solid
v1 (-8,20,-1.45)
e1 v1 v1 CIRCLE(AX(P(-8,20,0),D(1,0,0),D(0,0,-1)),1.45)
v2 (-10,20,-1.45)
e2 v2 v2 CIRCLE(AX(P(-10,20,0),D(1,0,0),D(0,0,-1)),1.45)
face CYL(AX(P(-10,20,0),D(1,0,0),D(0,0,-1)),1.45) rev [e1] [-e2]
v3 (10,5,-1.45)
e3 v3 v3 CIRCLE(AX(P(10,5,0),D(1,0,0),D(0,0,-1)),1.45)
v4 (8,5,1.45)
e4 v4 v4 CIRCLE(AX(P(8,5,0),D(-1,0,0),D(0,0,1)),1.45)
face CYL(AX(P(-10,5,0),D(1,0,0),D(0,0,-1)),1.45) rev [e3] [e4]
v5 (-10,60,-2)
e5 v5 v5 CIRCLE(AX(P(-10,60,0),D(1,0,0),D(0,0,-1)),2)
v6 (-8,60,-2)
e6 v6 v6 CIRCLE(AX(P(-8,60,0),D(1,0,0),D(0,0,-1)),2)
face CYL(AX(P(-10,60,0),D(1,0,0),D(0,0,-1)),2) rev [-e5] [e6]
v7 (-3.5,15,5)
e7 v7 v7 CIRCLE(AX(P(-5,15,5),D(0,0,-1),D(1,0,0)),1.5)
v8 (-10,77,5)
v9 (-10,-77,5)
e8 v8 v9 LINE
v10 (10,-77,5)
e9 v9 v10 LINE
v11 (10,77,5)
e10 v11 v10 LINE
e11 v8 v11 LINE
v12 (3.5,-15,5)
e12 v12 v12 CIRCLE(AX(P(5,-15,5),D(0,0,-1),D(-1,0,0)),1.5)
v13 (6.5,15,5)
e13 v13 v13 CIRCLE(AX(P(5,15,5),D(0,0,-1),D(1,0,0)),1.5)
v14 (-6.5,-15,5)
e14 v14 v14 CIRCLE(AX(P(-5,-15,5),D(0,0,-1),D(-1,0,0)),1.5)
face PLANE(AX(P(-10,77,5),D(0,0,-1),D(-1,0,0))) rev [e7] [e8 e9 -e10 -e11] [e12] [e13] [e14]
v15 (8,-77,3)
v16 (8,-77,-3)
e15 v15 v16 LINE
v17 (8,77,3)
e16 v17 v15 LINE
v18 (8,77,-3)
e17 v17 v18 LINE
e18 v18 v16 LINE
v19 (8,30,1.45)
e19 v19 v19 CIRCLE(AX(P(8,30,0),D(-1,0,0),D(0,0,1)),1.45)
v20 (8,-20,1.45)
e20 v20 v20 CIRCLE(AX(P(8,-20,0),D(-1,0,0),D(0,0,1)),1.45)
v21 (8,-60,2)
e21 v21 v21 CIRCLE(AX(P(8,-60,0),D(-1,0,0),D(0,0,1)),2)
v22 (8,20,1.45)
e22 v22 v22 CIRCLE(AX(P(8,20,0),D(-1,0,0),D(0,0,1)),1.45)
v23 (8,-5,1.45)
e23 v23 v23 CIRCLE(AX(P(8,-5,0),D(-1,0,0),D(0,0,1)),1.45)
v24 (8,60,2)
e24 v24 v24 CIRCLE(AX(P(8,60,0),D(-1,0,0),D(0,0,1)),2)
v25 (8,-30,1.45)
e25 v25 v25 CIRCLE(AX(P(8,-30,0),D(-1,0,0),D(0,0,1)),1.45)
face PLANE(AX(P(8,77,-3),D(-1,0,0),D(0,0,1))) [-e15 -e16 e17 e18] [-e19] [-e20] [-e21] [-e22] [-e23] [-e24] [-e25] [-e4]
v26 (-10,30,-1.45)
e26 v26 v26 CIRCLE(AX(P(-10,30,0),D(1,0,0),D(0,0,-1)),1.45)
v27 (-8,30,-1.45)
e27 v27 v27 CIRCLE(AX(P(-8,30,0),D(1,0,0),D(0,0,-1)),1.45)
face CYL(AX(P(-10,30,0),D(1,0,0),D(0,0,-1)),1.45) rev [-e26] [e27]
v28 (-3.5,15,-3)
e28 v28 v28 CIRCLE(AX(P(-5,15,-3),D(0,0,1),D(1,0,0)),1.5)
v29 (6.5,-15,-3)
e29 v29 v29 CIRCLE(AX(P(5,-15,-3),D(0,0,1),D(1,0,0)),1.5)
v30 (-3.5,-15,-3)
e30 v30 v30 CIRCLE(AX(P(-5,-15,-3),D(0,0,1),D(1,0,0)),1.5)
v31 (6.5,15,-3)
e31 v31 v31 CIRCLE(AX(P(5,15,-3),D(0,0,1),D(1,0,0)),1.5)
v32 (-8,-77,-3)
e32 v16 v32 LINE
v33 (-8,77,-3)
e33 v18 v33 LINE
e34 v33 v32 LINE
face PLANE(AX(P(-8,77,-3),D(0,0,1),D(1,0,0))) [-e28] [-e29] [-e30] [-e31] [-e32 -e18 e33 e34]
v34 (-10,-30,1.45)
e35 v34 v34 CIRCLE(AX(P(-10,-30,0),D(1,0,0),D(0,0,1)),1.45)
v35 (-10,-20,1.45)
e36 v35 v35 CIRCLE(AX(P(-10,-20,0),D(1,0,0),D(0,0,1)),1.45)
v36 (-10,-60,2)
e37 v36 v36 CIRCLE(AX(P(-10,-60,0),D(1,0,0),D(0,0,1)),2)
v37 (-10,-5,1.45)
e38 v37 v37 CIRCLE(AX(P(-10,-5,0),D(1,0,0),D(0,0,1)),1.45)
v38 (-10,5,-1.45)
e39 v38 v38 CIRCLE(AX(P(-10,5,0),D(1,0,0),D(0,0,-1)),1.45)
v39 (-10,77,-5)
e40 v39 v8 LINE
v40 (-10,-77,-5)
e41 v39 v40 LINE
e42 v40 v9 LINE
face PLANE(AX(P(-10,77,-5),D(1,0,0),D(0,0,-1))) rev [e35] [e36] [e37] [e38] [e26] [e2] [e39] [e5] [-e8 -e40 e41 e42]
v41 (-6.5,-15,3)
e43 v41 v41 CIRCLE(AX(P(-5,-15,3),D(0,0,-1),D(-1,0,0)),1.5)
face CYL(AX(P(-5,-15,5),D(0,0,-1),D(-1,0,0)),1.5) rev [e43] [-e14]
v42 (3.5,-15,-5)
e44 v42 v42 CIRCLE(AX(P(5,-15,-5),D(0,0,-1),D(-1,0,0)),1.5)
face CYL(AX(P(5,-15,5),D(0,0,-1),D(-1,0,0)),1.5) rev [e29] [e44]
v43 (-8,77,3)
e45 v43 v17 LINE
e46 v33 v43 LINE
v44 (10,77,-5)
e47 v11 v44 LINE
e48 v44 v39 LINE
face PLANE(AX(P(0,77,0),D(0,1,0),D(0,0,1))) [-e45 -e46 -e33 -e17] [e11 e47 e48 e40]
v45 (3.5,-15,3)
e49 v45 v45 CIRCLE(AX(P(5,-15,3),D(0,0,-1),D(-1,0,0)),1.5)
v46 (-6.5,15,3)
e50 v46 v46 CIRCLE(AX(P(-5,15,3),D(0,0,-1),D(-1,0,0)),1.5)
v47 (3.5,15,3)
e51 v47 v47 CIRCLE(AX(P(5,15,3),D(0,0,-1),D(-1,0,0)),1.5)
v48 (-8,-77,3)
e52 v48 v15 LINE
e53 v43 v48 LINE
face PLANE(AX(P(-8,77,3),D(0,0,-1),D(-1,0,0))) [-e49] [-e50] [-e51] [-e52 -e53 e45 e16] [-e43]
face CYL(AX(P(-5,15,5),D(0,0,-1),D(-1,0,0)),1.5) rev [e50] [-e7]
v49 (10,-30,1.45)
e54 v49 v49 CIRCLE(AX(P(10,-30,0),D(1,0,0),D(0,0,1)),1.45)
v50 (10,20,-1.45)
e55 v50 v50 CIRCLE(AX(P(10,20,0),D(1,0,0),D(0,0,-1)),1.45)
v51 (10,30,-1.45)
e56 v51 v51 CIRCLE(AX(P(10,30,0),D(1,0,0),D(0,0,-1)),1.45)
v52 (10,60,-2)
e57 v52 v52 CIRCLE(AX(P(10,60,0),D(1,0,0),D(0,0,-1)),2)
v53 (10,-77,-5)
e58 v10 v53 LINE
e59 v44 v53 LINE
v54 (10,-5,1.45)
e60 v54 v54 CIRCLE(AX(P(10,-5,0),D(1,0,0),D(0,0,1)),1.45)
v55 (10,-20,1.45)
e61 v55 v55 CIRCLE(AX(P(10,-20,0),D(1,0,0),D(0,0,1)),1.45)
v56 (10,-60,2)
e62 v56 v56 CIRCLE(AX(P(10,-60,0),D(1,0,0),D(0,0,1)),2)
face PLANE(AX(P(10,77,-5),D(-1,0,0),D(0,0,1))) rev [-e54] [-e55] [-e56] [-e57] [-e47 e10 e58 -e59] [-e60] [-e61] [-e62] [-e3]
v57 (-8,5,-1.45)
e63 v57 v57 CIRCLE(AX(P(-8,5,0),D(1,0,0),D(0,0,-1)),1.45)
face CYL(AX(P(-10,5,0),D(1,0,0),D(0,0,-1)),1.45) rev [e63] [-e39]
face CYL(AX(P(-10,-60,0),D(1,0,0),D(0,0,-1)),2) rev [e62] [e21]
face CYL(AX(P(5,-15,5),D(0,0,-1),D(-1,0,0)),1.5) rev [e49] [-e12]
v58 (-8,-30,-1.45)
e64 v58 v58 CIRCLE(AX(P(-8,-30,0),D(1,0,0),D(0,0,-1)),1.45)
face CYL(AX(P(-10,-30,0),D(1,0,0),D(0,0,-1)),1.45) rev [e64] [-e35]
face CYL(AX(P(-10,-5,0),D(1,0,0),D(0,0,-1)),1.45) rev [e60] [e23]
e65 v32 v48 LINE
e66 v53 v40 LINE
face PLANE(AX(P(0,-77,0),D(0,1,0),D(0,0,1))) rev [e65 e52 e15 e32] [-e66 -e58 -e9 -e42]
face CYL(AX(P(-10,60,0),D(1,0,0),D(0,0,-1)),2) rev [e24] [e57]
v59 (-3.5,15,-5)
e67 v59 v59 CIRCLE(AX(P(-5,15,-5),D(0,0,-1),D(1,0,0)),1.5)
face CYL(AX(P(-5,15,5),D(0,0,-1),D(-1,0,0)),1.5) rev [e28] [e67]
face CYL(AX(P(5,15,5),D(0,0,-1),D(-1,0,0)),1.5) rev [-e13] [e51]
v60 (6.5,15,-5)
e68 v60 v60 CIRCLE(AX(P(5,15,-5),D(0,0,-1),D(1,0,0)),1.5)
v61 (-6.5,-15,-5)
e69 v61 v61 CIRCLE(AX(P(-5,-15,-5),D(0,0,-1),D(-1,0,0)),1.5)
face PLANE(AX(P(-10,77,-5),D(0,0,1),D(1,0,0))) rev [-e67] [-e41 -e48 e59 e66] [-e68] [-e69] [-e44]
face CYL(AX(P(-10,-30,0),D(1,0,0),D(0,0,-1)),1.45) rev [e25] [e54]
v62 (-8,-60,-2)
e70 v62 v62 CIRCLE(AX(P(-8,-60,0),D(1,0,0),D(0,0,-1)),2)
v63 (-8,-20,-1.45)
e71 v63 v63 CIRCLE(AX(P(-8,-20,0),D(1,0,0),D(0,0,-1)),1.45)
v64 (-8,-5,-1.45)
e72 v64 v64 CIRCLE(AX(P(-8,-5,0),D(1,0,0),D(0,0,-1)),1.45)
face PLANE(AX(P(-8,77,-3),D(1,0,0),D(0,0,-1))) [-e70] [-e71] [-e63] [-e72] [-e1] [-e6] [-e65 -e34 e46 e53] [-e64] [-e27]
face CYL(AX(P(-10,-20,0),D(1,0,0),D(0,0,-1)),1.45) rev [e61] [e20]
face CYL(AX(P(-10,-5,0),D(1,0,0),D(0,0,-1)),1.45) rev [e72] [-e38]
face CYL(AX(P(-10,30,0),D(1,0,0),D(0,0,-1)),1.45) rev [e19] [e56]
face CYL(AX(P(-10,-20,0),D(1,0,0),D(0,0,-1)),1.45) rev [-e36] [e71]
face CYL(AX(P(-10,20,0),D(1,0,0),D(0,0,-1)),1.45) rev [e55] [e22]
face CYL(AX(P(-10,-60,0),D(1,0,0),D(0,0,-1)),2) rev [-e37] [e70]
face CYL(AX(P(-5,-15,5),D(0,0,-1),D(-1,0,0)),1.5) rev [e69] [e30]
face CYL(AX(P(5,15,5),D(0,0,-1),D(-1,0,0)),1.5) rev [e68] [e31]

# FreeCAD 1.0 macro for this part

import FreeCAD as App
import Part
import Sketcher
from FreeCAD import Vector
Q = App.Units.Quantity


def add_polygon(sketch, points):
    """Adds a closed chain of lines whose ends are joined by coincident constraints."""
    first, n = sketch.GeometryCount, len(points)
    for a, b in zip(points, points[1:] + points[:1]):
        sketch.addGeometry(Part.LineSegment(App.Vector(*a, 0), App.Vector(*b, 0)), False)
    for i in range(n):
        sketch.addConstraint(Sketcher.Constraint("Coincident", first + i, 2, first + (i + 1) % n, 1))

doc = App.newDocument("Part")
params = doc.addObject("Spreadsheet::Sheet", "Params")
for row, (alias, value) in enumerate([
    ("sketch1_width", "20 mm"),
    ("sketch1_width2", "16 mm"),
    ("sketch1_height", "10 mm"),
    ("sketch1_height2", "6 mm"),
    ("pad1_length", "154 mm"),
    ("sketch2_diameter", "4 mm"),
    ("sketch2_diameter2", "2.9 mm"),
    ("sketch3_diameter", "3 mm"),
], start=1):
    params.set(f"A{row}", alias)
    params.set(f"B{row}", "=" + value)
    params.setAlias(f"B{row}", alias)

body = doc.addObject("PartDesign::Body", "Body")

sketch1 = body.newObject("Sketcher::SketchObject", "Sketch")
sketch1.AttachmentSupport = (doc.getObject("XZ_Plane"), [""])
sketch1.MapMode = "FlatFace"
add_polygon(sketch1, [(-10, -5), (-10, 5), (10, 5), (10, -5)])
add_polygon(sketch1, [(8, 3), (-8, 3), (-8, -3), (8, -3)])
sketch1.addConstraint([
    Sketcher.Constraint("Vertical", 0),
    Sketcher.Constraint("Horizontal", 1),
    Sketcher.Constraint("Vertical", 2),
    Sketcher.Constraint("Horizontal", 3),
    Sketcher.Constraint("Horizontal", 4),
    Sketcher.Constraint("Vertical", 5),
    Sketcher.Constraint("Horizontal", 6),
    Sketcher.Constraint("Vertical", 7),
    Sketcher.Constraint("Symmetric", 0, 2, 2, 2, -1, 1),
    Sketcher.Constraint("Symmetric", 4, 2, 6, 2, -1, 1),
    Sketcher.Constraint("DistanceX", 1, 1, 1, 2, Q("20 mm")),
    Sketcher.Constraint("DistanceX", 4, 2, 4, 1, Q("16 mm")),
    Sketcher.Constraint("DistanceY", 0, 1, 0, 2, Q("10 mm")),
    Sketcher.Constraint("DistanceY", 5, 2, 5, 1, Q("6 mm")),
])
sketch1.setExpression("Constraints[18]", "Params.sketch1_width")
sketch1.setExpression("Constraints[19]", "Params.sketch1_width2")
sketch1.setExpression("Constraints[20]", "Params.sketch1_height")
sketch1.setExpression("Constraints[21]", "Params.sketch1_height2")
pad1 = body.newObject("PartDesign::Pad", "Pad")
pad1.Profile = sketch1
pad1.setExpression("Length", "Params.pad1_length")
pad1.Midplane = True

sketch2 = body.newObject("Sketcher::SketchObject", "Sketch001")
sketch2.AttachmentSupport = (doc.getObject("YZ_Plane"), [""])
sketch2.MapMode = "FlatFace"
sketch2.AttachmentOffset = App.Placement(Vector(0, 0, 10), App.Rotation())
sketch2.addGeometry([
    Part.Circle(Vector(5, 0, 0), Vector(0, 0, 1), 1.4),
    Part.Circle(Vector(20, 0, 0), Vector(0, 0, 1), 1.4),
    Part.Circle(Vector(30, 0, 0), Vector(0, 0, 1), 1.4),
    Part.Circle(Vector(-30, 0, 0), Vector(0, 0, 1), 1.4),
    Part.Circle(Vector(-20, 0, 0), Vector(0, 0, 1), 1.4),
    Part.Circle(Vector(-5, 0, 0), Vector(0, 0, 1), 1.4),
    Part.Circle(Vector(60, 0, 0), Vector(0, 0, 1), 2),
    Part.Circle(Vector(-60, 0, 0), Vector(0, 0, 1), 2),
], False)
sketch2.addConstraint([
    Sketcher.Constraint("Equal", 0, 1),
    Sketcher.Constraint("Equal", 1, 2),
    Sketcher.Constraint("Equal", 2, 3),
    Sketcher.Constraint("Equal", 3, 4),
    Sketcher.Constraint("Equal", 4, 5),
    Sketcher.Constraint("Equal", 6, 7),
    Sketcher.Constraint("Symmetric", 2, 3, 3, 3, -1, 1),
    Sketcher.Constraint("Symmetric", 1, 3, 4, 3, -1, 1),
    Sketcher.Constraint("Symmetric", 0, 3, 5, 3, -1, 1),
    Sketcher.Constraint("Symmetric", 6, 3, 7, 3, -1, 1),
    Sketcher.Constraint("PointOnObject", 0, 3, -1),
    Sketcher.Constraint("PointOnObject", 1, 3, -1),
    Sketcher.Constraint("PointOnObject", 2, 3, -1),
    Sketcher.Constraint("PointOnObject", 6, 3, -1),
    Sketcher.Constraint("Diameter", 6, Q("4 mm")),
    Sketcher.Constraint("Diameter", 0, Q("2.9 mm")),
    Sketcher.Constraint("DistanceX", -1, 1, 0, 3, Q("5 mm")),
    Sketcher.Constraint("DistanceX", -1, 1, 1, 3, Q("20 mm")),
    Sketcher.Constraint("DistanceX", -1, 1, 2, 3, Q("30 mm")),
    Sketcher.Constraint("DistanceX", -1, 1, 6, 3, Q("60 mm")),
])
sketch2.setExpression("Constraints[14]", "Params.sketch2_diameter")
sketch2.setExpression("Constraints[15]", "Params.sketch2_diameter2")
pocket1 = body.newObject("PartDesign::Pocket", "Pocket")
pocket1.Profile = sketch2
pocket1.Type = "ThroughAll"

sketch3 = body.newObject("Sketcher::SketchObject", "Sketch002")
sketch3.AttachmentSupport = (doc.getObject("XY_Plane"), [""])
sketch3.MapMode = "FlatFace"
sketch3.AttachmentOffset = App.Placement(Vector(0, 0, -5), App.Rotation())
sketch3.addGeometry([
    Part.Circle(Vector(-5, -15, 0), Vector(0, 0, 1), 1.5),
    Part.Circle(Vector(5, -15, 0), Vector(0, 0, 1), 1.5),
    Part.Circle(Vector(-5, 15, 0), Vector(0, 0, 1), 1.5),
    Part.Circle(Vector(5, 15, 0), Vector(0, 0, 1), 1.5),
], False)
sketch3.addConstraint([
    Sketcher.Constraint("Equal", 0, 1),
    Sketcher.Constraint("Equal", 1, 2),
    Sketcher.Constraint("Equal", 2, 3),
    Sketcher.Constraint("Symmetric", 1, 3, 2, 3, -1, 1),
    Sketcher.Constraint("Symmetric", 0, 3, 3, 3, -1, 1),
    Sketcher.Constraint("Symmetric", 0, 3, 1, 3, -2),
    Sketcher.Constraint("Diameter", 0, Q("3 mm")),
    Sketcher.Constraint("DistanceX", 0, 3, -1, 1, Q("5 mm")),
    Sketcher.Constraint("DistanceY", 0, 3, -1, 1, Q("15 mm")),
])
sketch3.setExpression("Constraints[6]", "Params.sketch3_diameter")
pocket2 = body.newObject("PartDesign::Pocket", "Pocket001")
pocket2.Profile = sketch3
pocket2.Type = "ThroughAll"
pocket2.Reversed = True

doc.recompute()
